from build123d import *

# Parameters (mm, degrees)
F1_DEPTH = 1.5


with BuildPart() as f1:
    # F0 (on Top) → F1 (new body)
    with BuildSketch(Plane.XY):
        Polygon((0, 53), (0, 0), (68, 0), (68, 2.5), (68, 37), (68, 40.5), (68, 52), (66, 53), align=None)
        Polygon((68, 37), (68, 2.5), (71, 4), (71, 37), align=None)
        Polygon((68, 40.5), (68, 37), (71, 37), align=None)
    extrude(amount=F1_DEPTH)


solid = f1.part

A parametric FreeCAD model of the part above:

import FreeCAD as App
import Part
import Sketcher
from FreeCAD import Vector
Q = App.Units.Quantity

doc = App.newDocument("Part")
params = doc.addObject("Spreadsheet::Sheet", "Params")
for row, (alias, value) in enumerate([
    ("sketch1_width", "68 mm"),
    ("sketch1_width2", "66 mm"),
    ("sketch1_height", "53 mm"),
    ("sketch1_height2", "33 mm"),
    ("sketch1_height3", "2.5 mm"),
    ("pad1_length", "1.5 mm"),
], start=1):
    params.set(f"A{row}", alias)
    params.set(f"B{row}", "=" + value)
    params.setAlias(f"B{row}", alias)

body = doc.addObject("PartDesign::Body", "Body")

# Sketch on XY plane
sketch1 = body.newObject("Sketcher::SketchObject", "Sketch")
sketch1.AttachmentSupport = (doc.getObject("XY_Plane"), [""])
sketch1.MapMode = "FlatFace"
sketch1.addGeometry([
    Part.LineSegment(Vector(0, 53, 0), Vector(0, 0, 0)),  # 0
    Part.LineSegment(Vector(0, 0, 0), Vector(68, 0, 0)),  # 1
    Part.LineSegment(Vector(68, 0, 0), Vector(68, 2.5, 0)),  # 2
    Part.LineSegment(Vector(68, 2.5, 0), Vector(71, 4, 0)),  # 3
    Part.LineSegment(Vector(71, 4, 0), Vector(71, 37, 0)),  # 4
    Part.LineSegment(Vector(71, 37, 0), Vector(68, 40.5, 0)),  # 5
    Part.LineSegment(Vector(68, 40.5, 0), Vector(68, 52, 0)),  # 6
    Part.LineSegment(Vector(68, 52, 0), Vector(66, 53, 0)),  # 7
    Part.LineSegment(Vector(66, 53, 0), Vector(0, 53, 0)),  # 8
], False)
sketch1.addConstraint([
    Sketcher.Constraint("Coincident", 0, 2, 1, 1),
    Sketcher.Constraint("Coincident", 1, 2, 2, 1),
    Sketcher.Constraint("Coincident", 2, 2, 3, 1),
    Sketcher.Constraint("Coincident", 3, 2, 4, 1),
    Sketcher.Constraint("Coincident", 4, 2, 5, 1),
    Sketcher.Constraint("Coincident", 5, 2, 6, 1),
    Sketcher.Constraint("Coincident", 6, 2, 7, 1),
    Sketcher.Constraint("Coincident", 7, 2, 8, 1),
    Sketcher.Constraint("Coincident", 8, 2, 0, 1),
    Sketcher.Constraint("Vertical", 0),
    Sketcher.Constraint("Horizontal", 1),
    Sketcher.Constraint("Vertical", 2),
    Sketcher.Constraint("Vertical", 4),
    Sketcher.Constraint("Vertical", 6),
    Sketcher.Constraint("Horizontal", 8),
    Sketcher.Constraint("Coincident", 0, 2, -1, 1),
    Sketcher.Constraint("Vertical", 2, 2, 5, 2),
    Sketcher.Constraint("DistanceX", 1, 1, 1, 2, Q("68 mm")),
    Sketcher.Constraint("DistanceX", 8, 2, 8, 1, Q("66 mm")),
    Sketcher.Constraint("DistanceY", 0, 2, 0, 1, Q("53 mm")),
    Sketcher.Constraint("DistanceY", 4, 1, 4, 2, Q("33 mm")),
    Sketcher.Constraint("DistanceY", 2, 1, 2, 2, Q("2.5 mm")),
    Sketcher.Constraint("DistanceY", 6, 1, 6, 2, Q("11.5 mm")),
    Sketcher.Constraint("DistanceX", -1, 1, 3, 2, Q("71 mm")),
    Sketcher.Constraint("DistanceY", -1, 1, 3, 2, Q("4 mm")),
    Sketcher.Constraint("DistanceY", -1, 1, 6, 2, Q("52 mm")),
])
sketch1.setExpression("Constraints[17]", "Params.sketch1_width")
sketch1.setExpression("Constraints[18]", "Params.sketch1_width2")
sketch1.setExpression("Constraints[19]", "Params.sketch1_height")
sketch1.setExpression("Constraints[20]", "Params.sketch1_height2")
sketch1.setExpression("Constraints[21]", "Params.sketch1_height3")
pad1 = body.newObject("PartDesign::Pad", "Pad")
pad1.Profile = sketch1
pad1.setExpression("Length", "Params.pad1_length")

doc.recompute()
